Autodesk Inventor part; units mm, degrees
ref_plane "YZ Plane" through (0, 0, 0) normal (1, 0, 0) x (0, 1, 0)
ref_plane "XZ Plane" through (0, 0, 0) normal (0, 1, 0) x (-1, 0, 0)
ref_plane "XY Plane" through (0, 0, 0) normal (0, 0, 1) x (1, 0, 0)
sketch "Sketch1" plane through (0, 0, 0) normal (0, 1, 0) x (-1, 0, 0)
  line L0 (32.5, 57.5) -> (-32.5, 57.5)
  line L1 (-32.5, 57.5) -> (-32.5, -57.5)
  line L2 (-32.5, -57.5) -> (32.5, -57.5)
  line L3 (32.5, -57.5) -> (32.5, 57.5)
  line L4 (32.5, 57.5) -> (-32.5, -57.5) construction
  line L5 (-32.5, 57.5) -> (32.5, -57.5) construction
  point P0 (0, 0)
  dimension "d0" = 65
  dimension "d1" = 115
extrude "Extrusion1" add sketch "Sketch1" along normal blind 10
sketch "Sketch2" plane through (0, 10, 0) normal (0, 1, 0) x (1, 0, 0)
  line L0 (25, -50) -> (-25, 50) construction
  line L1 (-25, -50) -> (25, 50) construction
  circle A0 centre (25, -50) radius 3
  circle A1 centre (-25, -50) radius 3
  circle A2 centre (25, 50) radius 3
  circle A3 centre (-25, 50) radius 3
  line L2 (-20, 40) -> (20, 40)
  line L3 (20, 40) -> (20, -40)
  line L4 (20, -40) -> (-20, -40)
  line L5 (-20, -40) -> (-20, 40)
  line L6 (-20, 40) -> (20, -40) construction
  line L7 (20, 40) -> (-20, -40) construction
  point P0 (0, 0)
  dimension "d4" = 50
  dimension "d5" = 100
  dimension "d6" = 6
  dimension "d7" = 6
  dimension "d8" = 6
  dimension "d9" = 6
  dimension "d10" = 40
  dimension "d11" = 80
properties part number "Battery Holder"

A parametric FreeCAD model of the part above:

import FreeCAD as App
import Part
import Sketcher
Q = App.Units.Quantity


def add_polygon(sketch, points):
    """Adds a closed chain of lines whose ends are joined by coincident constraints."""
    first, n = sketch.GeometryCount, len(points)
    for a, b in zip(points, points[1:] + points[:1]):
        sketch.addGeometry(Part.LineSegment(App.Vector(*a, 0), App.Vector(*b, 0)), False)
    for i in range(n):
        sketch.addConstraint(Sketcher.Constraint("Coincident", first + i, 2, first + (i + 1) % n, 1))

doc = App.newDocument("Part")
params = doc.addObject("Spreadsheet::Sheet", "Params")
for row, (alias, value) in enumerate([
    ("sketch1_width", "65 mm"),
    ("sketch1_height", "115 mm"),
    ("pad1_length", "10 mm"),
], start=1):
    params.set(f"A{row}", alias)
    params.set(f"B{row}", "=" + value)
    params.setAlias(f"B{row}", alias)

body = doc.addObject("PartDesign::Body", "Body")

sketch1 = body.newObject("Sketcher::SketchObject", "Sketch")
sketch1.AttachmentSupport = (doc.getObject("XZ_Plane"), [""])
sketch1.MapMode = "FlatFace"
add_polygon(sketch1, [(-32, -58), (-32, 58), (32, 58), (32, -58)])
sketch1.addConstraint(Sketcher.Constraint("Vertical", 0))
sketch1.addConstraint(Sketcher.Constraint("Horizontal", 1))
sketch1.addConstraint(Sketcher.Constraint("Vertical", 2))
sketch1.addConstraint(Sketcher.Constraint("Horizontal", 3))
sketch1.addConstraint(Sketcher.Constraint("Symmetric", 0, 2, 2, 2, -1, 1))
sketch1.addConstraint(Sketcher.Constraint("DistanceX", 1, 1, 1, 2, Q("65 mm")))
sketch1.addConstraint(Sketcher.Constraint("DistanceY", 0, 1, 0, 2, Q("115 mm")))
sketch1.setExpression("Constraints[9]", "Params.sketch1_width")
sketch1.setExpression("Constraints[10]", "Params.sketch1_height")
pad1 = body.newObject("PartDesign::Pad", "Pad")
pad1.Profile = sketch1
pad1.setExpression("Length", "Params.pad1_length")
pad1.Reversed = True

doc.recompute()
